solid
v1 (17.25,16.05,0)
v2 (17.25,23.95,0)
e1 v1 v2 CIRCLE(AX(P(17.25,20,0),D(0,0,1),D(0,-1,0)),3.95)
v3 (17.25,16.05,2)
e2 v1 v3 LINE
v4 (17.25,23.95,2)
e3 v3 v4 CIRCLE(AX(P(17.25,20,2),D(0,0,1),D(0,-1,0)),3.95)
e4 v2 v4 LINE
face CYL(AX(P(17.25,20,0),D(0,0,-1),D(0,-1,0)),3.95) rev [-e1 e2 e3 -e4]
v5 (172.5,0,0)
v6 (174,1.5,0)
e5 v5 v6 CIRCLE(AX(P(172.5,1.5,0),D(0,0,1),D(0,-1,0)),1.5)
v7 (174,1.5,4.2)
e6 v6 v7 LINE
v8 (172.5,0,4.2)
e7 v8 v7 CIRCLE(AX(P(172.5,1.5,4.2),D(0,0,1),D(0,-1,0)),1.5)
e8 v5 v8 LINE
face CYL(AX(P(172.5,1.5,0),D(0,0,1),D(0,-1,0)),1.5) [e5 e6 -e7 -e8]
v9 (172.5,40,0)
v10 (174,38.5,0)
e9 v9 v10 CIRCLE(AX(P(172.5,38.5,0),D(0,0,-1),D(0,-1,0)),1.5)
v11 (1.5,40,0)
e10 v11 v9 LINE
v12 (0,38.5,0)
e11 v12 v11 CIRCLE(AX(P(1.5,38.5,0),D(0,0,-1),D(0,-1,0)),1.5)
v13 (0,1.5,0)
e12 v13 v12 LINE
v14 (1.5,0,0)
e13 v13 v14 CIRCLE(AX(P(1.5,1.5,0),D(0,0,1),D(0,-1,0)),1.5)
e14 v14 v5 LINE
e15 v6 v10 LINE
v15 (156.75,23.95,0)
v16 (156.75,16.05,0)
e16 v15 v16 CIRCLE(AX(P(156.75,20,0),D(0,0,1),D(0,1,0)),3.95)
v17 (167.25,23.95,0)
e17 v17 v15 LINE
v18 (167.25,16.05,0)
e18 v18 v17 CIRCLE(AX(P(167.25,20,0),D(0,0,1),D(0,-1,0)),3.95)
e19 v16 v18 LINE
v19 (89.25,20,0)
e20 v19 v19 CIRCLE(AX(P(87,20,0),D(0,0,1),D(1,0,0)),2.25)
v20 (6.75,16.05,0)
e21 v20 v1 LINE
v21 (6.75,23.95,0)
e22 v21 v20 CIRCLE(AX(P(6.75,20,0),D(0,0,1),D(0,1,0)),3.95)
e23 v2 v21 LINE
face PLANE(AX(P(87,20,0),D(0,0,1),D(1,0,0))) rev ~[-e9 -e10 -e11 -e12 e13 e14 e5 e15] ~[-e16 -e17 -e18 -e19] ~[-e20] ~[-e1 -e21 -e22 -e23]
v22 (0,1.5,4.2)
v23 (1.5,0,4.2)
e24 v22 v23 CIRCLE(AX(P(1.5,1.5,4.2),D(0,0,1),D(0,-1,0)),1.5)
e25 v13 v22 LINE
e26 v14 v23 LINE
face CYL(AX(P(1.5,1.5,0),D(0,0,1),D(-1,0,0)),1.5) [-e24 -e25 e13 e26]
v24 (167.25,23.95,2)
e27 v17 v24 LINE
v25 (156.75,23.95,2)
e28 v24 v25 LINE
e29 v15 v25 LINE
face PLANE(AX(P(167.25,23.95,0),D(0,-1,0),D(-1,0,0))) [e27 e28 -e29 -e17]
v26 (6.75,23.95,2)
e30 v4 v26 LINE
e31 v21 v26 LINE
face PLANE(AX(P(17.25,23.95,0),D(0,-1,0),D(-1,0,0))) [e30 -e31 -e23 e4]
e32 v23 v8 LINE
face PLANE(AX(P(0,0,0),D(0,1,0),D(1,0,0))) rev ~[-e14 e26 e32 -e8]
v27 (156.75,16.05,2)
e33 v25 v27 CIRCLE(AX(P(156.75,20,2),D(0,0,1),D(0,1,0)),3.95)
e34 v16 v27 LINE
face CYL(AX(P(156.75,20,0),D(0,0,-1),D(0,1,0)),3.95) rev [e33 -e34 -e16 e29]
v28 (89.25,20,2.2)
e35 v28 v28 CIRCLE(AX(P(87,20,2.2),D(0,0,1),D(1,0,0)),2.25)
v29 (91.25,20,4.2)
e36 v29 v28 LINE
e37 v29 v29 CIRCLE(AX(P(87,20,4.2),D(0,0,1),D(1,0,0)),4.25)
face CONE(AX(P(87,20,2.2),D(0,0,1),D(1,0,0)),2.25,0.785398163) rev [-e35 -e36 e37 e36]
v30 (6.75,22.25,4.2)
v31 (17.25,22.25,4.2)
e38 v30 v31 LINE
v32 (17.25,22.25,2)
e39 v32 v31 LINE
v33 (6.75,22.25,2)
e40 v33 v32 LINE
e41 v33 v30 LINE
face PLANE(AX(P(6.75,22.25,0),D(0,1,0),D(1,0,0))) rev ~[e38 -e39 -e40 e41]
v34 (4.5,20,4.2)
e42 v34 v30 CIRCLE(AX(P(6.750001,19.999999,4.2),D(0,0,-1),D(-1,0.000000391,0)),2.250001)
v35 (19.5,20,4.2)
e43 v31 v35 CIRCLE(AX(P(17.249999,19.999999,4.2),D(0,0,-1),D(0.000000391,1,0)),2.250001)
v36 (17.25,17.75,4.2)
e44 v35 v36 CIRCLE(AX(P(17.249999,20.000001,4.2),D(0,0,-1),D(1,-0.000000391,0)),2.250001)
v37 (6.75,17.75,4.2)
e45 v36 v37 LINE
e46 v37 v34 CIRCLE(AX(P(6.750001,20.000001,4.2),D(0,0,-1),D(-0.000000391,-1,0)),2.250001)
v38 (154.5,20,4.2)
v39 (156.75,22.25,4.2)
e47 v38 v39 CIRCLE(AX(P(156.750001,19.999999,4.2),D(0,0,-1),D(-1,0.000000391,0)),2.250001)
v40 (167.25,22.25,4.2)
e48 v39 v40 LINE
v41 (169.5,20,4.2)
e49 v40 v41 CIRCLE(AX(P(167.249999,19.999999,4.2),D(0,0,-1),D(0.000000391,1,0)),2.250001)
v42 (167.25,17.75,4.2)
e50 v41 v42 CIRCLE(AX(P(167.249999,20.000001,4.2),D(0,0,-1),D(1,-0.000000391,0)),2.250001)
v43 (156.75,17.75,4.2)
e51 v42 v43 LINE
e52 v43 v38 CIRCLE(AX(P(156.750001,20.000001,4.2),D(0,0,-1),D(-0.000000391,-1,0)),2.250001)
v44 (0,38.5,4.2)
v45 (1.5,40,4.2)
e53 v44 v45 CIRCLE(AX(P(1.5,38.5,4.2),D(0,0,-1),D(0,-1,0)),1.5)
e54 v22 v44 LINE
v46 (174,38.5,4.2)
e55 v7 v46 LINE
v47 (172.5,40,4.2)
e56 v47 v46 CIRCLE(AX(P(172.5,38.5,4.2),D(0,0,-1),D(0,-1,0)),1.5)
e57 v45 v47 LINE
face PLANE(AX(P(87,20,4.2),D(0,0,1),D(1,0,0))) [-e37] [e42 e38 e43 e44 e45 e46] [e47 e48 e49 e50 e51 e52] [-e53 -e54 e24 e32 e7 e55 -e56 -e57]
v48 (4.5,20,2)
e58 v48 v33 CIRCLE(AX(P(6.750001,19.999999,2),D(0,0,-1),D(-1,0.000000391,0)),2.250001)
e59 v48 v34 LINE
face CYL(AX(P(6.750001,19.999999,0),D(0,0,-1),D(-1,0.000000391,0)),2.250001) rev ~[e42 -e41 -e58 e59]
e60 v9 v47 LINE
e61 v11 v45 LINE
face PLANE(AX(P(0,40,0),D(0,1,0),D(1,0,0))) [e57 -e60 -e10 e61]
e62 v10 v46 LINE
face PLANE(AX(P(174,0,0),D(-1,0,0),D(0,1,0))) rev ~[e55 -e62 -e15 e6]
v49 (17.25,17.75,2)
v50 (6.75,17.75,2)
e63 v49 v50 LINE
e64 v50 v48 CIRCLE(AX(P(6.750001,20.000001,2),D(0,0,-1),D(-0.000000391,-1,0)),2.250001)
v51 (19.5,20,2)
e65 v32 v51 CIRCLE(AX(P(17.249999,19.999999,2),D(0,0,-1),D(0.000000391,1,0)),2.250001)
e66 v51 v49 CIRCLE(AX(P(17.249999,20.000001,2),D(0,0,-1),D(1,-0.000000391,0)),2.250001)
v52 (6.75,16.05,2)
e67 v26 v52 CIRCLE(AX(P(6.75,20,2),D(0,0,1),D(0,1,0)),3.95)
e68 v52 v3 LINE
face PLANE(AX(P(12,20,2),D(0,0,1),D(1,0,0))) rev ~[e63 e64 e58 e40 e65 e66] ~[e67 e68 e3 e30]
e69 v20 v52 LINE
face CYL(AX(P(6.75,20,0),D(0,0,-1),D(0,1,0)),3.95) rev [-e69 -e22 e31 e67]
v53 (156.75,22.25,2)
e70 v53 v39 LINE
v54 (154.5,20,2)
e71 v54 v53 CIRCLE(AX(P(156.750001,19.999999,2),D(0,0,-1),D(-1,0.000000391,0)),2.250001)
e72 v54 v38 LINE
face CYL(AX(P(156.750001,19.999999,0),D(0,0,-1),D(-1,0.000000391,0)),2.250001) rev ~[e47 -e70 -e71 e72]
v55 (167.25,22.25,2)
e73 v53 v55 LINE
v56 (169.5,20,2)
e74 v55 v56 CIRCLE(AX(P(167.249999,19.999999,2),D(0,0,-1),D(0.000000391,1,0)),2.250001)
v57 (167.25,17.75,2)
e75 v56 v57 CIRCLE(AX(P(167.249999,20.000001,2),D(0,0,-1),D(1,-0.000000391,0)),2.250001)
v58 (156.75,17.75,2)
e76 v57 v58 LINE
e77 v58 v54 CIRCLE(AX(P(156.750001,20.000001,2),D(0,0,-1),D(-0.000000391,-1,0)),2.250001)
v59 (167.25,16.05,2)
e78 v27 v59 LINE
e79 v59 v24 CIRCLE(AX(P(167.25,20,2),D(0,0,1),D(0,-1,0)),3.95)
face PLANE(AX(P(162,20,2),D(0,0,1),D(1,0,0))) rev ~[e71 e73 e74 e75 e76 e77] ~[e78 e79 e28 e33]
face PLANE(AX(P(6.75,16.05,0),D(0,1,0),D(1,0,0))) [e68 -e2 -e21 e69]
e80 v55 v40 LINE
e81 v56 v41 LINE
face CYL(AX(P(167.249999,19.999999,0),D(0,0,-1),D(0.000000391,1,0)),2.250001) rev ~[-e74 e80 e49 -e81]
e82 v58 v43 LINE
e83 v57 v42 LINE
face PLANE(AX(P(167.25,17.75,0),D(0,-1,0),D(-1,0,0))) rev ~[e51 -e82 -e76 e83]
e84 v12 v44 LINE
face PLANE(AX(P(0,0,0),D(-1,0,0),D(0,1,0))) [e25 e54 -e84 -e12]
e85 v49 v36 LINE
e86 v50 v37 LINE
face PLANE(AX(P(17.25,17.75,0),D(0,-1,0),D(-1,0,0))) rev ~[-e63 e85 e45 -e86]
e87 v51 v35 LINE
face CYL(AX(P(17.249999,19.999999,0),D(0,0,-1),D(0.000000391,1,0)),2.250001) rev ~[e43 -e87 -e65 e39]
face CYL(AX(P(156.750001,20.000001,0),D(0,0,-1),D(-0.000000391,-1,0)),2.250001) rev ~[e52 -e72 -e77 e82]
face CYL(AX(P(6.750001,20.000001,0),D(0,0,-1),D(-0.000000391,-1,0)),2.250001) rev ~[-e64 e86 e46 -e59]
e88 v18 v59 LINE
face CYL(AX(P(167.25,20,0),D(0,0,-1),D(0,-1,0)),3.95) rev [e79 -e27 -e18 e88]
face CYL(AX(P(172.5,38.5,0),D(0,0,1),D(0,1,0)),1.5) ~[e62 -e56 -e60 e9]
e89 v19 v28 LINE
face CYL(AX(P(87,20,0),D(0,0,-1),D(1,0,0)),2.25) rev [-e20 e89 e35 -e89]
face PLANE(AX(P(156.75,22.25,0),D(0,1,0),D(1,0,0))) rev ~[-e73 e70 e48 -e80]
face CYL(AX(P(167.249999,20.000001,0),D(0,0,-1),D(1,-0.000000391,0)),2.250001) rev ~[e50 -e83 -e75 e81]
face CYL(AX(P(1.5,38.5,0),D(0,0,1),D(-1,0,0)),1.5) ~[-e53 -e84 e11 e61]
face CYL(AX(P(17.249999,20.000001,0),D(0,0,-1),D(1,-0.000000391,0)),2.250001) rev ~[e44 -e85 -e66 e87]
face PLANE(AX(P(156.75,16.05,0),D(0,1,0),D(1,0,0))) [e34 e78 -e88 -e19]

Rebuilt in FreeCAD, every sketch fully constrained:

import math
import FreeCAD as App
import Part
import Sketcher

V = App.Vector


def edges_at(feature, points):
    """Names of the edges that pass closest to the given points."""
    edges = feature.Shape.Edges
    near = lambda p: min(range(len(edges)), key=lambda i: edges[i].distToShape(Part.Vertex(*p))[0])
    return sorted({f"Edge{near(p) + 1}" for p in points})


def add_polygon(sketch, points):
    """Adds a closed chain of lines whose ends are joined by coincident constraints."""
    first, n = sketch.GeometryCount, len(points)
    for a, b in zip(points, points[1:] + points[:1]):
        sketch.addGeometry(Part.LineSegment(App.Vector(*a, 0), App.Vector(*b, 0)), False)
    for i in range(n):
        sketch.addConstraint(Sketcher.Constraint("Coincident", first + i, 2, first + (i + 1) % n, 1))

doc = App.newDocument("Part")
params = doc.addObject("Spreadsheet::Sheet", "Params")
for row, (alias, value) in enumerate([
    ("sketch1_diameter", "4.5 mm"),
    ("sketch1_width", "174 mm"),
    ("sketch1_height", "40 mm"),
    ("sketch1_width2", "10.5 mm"),
    ("pad1_length", "4.2 mm"),
    ("sketch2_radius", "3.95 mm"),
    ("sketch2_width", "10.5 mm"),
    ("pocket1_length", "2 mm"),
    ("chamfer_size", "2 mm"),
    ("fillet_radius", "1.5 mm"),
], start=1):
    params.set(f"A{row}", alias)
    params.set(f"B{row}", "=" + value)
    params.setAlias(f"B{row}", alias)

body = doc.addObject("PartDesign::Body", "Body")

# Sketch on XY plane
sketch1 = body.newObject("Sketcher::SketchObject", "Sketch")
sketch1.AttachmentSupport = (doc.getObject("XY_Plane"), [""])
sketch1.MapMode = "FlatFace"
add_polygon(sketch1, [(0, 40), (0, 0), (174, 0), (174, 40)])  # lines 0-3
sketch1.addGeometry(Part.Circle(V(87, 20, 0), V(0, 0, 1), 2.2), False)  # 4
sketch1.addGeometry(Part.ArcOfCircle(Part.Circle(V(156.8, 20, 0), V(0, 0, 1), 2.3), math.radians(90), math.radians(180)), False)  # 5
sketch1.addGeometry(Part.LineSegment(V(156.8, 22.2, 0), V(167.2, 22.2, 0)), False)  # 6
sketch1.addGeometry(Part.ArcOfCircle(Part.Circle(V(167.2, 20, 0), V(0, 0, 1), 2.3), math.radians(0), math.radians(90)), False)  # 7
sketch1.addGeometry(Part.ArcOfCircle(Part.Circle(V(167.2, 20, 0), V(0, 0, 1), 2.3), math.radians(-90), math.radians(0)), False)  # 8
sketch1.addGeometry(Part.LineSegment(V(167.2, 17.8, 0), V(156.8, 17.8, 0)), False)  # 9
sketch1.addGeometry(Part.ArcOfCircle(Part.Circle(V(156.8, 20, 0), V(0, 0, 1), 2.3), math.radians(-180), math.radians(-90)), False)  # 10
sketch1.addGeometry(Part.ArcOfCircle(Part.Circle(V(6.8, 20, 0), V(0, 0, 1), 2.3), math.radians(-180), math.radians(-90)), False)  # 11
sketch1.addGeometry(Part.ArcOfCircle(Part.Circle(V(6.8, 20, 0), V(0, 0, 1), 2.3), math.radians(90), math.radians(180)), False)  # 12
sketch1.addGeometry(Part.LineSegment(V(6.8, 22.2, 0), V(17.2, 22.2, 0)), False)  # 13
sketch1.addGeometry(Part.ArcOfCircle(Part.Circle(V(17.2, 20, 0), V(0, 0, 1), 2.3), math.radians(0), math.radians(90)), False)  # 14
sketch1.addGeometry(Part.ArcOfCircle(Part.Circle(V(17.2, 20, 0), V(0, 0, 1), 2.3), math.radians(-90), math.radians(0)), False)  # 15
sketch1.addGeometry(Part.LineSegment(V(17.2, 17.8, 0), V(6.8, 17.8, 0)), False)  # 16
sketch1.addConstraint(Sketcher.Constraint("Tangent", 5, 1, 6, 1))
sketch1.addConstraint(Sketcher.Constraint("Tangent", 6, 2, 7, 2))
sketch1.addConstraint(Sketcher.Constraint("Tangent", 7, 1, 8, 2))
sketch1.addConstraint(Sketcher.Constraint("Tangent", 8, 1, 9, 1))
sketch1.addConstraint(Sketcher.Constraint("Tangent", 9, 2, 10, 2))
sketch1.addConstraint(Sketcher.Constraint("Tangent", 10, 1, 5, 2))
sketch1.addConstraint(Sketcher.Constraint("Tangent", 11, 1, 12, 2))
sketch1.addConstraint(Sketcher.Constraint("Tangent", 12, 1, 13, 1))
sketch1.addConstraint(Sketcher.Constraint("Tangent", 13, 2, 14, 2))
sketch1.addConstraint(Sketcher.Constraint("Tangent", 14, 1, 15, 2))
sketch1.addConstraint(Sketcher.Constraint("Tangent", 15, 1, 16, 1))
sketch1.addConstraint(Sketcher.Constraint("Tangent", 16, 2, 11, 2))
sketch1.addConstraint(Sketcher.Constraint("Vertical", 0))
sketch1.addConstraint(Sketcher.Constraint("Horizontal", 1))
sketch1.addConstraint(Sketcher.Constraint("Vertical", 2))
sketch1.addConstraint(Sketcher.Constraint("Horizontal", 3))
sketch1.addConstraint(Sketcher.Constraint("Horizontal", 6))
sketch1.addConstraint(Sketcher.Constraint("Horizontal", 9))
sketch1.addConstraint(Sketcher.Constraint("Horizontal", 13))
sketch1.addConstraint(Sketcher.Constraint("Horizontal", 16))
sketch1.addConstraint(Sketcher.Constraint("Coincident", 0, 2, -1, 1))
sketch1.addConstraint(Sketcher.Constraint("Equal", 4, 5))
sketch1.addConstraint(Sketcher.Constraint("Equal", 5, 7))
sketch1.addConstraint(Sketcher.Constraint("Equal", 7, 8))
sketch1.addConstraint(Sketcher.Constraint("Equal", 10, 11))
sketch1.addConstraint(Sketcher.Constraint("Equal", 11, 12))
sketch1.addConstraint(Sketcher.Constraint("Equal", 12, 14))
sketch1.addConstraint(Sketcher.Constraint("Horizontal", 4, 3, 5, 3))
sketch1.addConstraint(Sketcher.Constraint("Horizontal", 10, 3, 11, 3))
sketch1.addConstraint(Sketcher.Constraint("Horizontal", 15, 3, 7, 1))
sketch1.addConstraint(Sketcher.Constraint("Horizontal", 7, 1, 10, 1))
sketch1.addConstraint(Sketcher.Constraint("Horizontal", 10, 1, 11, 1))
sketch1.addConstraint(Sketcher.Constraint("Horizontal", 11, 1, 14, 1))
sketch1.addConstraint(Sketcher.Constraint("Equal", 9, 13))
sketch1.addConstraint(Sketcher.Constraint("Diameter", 4, 4.5))
sketch1.addConstraint(Sketcher.Constraint("DistanceX", 1, 1, 1, 2, 174.0))
sketch1.addConstraint(Sketcher.Constraint("DistanceY", 0, 2, 0, 1, 40.0))
sketch1.addConstraint(Sketcher.Constraint("DistanceX", 6, 1, 6, 2, 10.5))
sketch1.addConstraint(Sketcher.Constraint("DistanceX", -1, 1, 4, 3, 87.0))
sketch1.addConstraint(Sketcher.Constraint("DistanceY", -1, 1, 4, 3, 20.0))
sketch1.addConstraint(Sketcher.Constraint("DistanceX", 11, 3, 5, 3, 150.0))
sketch1.addConstraint(Sketcher.Constraint("DistanceX", -1, 1, 7, 1, 169.5))
sketch1.setExpression("Constraints[38]", "Params.sketch1_diameter")
sketch1.setExpression("Constraints[39]", "Params.sketch1_width")
sketch1.setExpression("Constraints[40]", "Params.sketch1_height")
sketch1.setExpression("Constraints[41]", "Params.sketch1_width2")
pad1 = body.newObject("PartDesign::Pad", "Pad")
pad1.Profile = sketch1
pad1.setExpression("Length", "Params.pad1_length")

# Sketch on XY plane
sketch2 = body.newObject("Sketcher::SketchObject", "Sketch001")
sketch2.AttachmentSupport = (doc.getObject("XY_Plane"), [""])
sketch2.MapMode = "FlatFace"
sketch2.addGeometry(Part.ArcOfCircle(Part.Circle(V(6.8, 20, 0), V(0, 0, 1), 4), math.radians(90), math.radians(270)), False)
sketch2.addGeometry(Part.LineSegment(V(6.8, 16.1, 0), V(17.2, 16.1, 0)), False)
sketch2.addGeometry(Part.ArcOfCircle(Part.Circle(V(17.2, 20, 0), V(0, 0, 1), 4), math.radians(-90), math.radians(90)), False)
sketch2.addGeometry(Part.LineSegment(V(17.2, 23.9, 0), V(6.8, 23.9, 0)), False)
sketch2.addGeometry(Part.LineSegment(V(156.8, 16.1, 0), V(167.2, 16.1, 0)), False)
sketch2.addGeometry(Part.ArcOfCircle(Part.Circle(V(167.2, 20, 0), V(0, 0, 1), 4), math.radians(-90), math.radians(90)), False)
sketch2.addGeometry(Part.LineSegment(V(167.2, 23.9, 0), V(156.8, 23.9, 0)), False)
sketch2.addGeometry(Part.ArcOfCircle(Part.Circle(V(156.8, 20, 0), V(0, 0, 1), 4), math.radians(90), math.radians(270)), False)
sketch2.addConstraint(Sketcher.Constraint("Tangent", 0, 2, 1, 1))
sketch2.addConstraint(Sketcher.Constraint("Tangent", 1, 2, 2, 1))
sketch2.addConstraint(Sketcher.Constraint("Tangent", 2, 2, 3, 1))
sketch2.addConstraint(Sketcher.Constraint("Tangent", 3, 2, 0, 1))
sketch2.addConstraint(Sketcher.Constraint("Tangent", 4, 2, 5, 1))
sketch2.addConstraint(Sketcher.Constraint("Tangent", 5, 2, 6, 1))
sketch2.addConstraint(Sketcher.Constraint("Tangent", 6, 2, 7, 1))
sketch2.addConstraint(Sketcher.Constraint("Tangent", 7, 2, 4, 1))
sketch2.addConstraint(Sketcher.Constraint("Horizontal", 1))
sketch2.addConstraint(Sketcher.Constraint("Horizontal", 3))
sketch2.addConstraint(Sketcher.Constraint("Horizontal", 4))
sketch2.addConstraint(Sketcher.Constraint("Horizontal", 6))
sketch2.addConstraint(Sketcher.Constraint("Equal", 2, 5))
sketch2.addConstraint(Sketcher.Constraint("Horizontal", 2, 3, 5, 3))
sketch2.addConstraint(Sketcher.Constraint("Equal", 3, 4))
sketch2.addConstraint(Sketcher.Constraint("Radius", 0, 3.95))
sketch2.addConstraint(Sketcher.Constraint("DistanceX", 1, 1, 1, 2, 10.5))
sketch2.addConstraint(Sketcher.Constraint("DistanceY", -1, 1, 0, 3, 20.0))
sketch2.addConstraint(Sketcher.Constraint("DistanceX", 2, 3, 5, 3, 150.0))
sketch2.addConstraint(Sketcher.Constraint("DistanceX", -1, 1, 0, 3, 6.75))
sketch2.setExpression("Constraints[15]", "Params.sketch2_radius")
sketch2.setExpression("Constraints[16]", "Params.sketch2_width")
pocket1 = body.newObject("PartDesign::Pocket", "Pocket")
pocket1.Profile = sketch2
pocket1.setExpression("Length", "Params.pocket1_length")
pocket1.Reversed = True
doc.recompute()

chamfer = body.newObject("PartDesign::Chamfer", "Chamfer")
chamfer.Base = (pocket1, edges_at(pocket1, [(84.75, 20, 4.2)]))
chamfer.setExpression("Size", "Params.chamfer_size")
doc.recompute()

fillet = body.newObject("PartDesign::Fillet", "Fillet")
fillet.Base = (chamfer, edges_at(chamfer, [
    (174, 0, 2.1),
    (174, 40, 2.1),
    (0, 40, 2.1),
    (0, 0, 2.1),
]))
fillet.setExpression("Radius", "Params.fillet_radius")

doc.recompute()
